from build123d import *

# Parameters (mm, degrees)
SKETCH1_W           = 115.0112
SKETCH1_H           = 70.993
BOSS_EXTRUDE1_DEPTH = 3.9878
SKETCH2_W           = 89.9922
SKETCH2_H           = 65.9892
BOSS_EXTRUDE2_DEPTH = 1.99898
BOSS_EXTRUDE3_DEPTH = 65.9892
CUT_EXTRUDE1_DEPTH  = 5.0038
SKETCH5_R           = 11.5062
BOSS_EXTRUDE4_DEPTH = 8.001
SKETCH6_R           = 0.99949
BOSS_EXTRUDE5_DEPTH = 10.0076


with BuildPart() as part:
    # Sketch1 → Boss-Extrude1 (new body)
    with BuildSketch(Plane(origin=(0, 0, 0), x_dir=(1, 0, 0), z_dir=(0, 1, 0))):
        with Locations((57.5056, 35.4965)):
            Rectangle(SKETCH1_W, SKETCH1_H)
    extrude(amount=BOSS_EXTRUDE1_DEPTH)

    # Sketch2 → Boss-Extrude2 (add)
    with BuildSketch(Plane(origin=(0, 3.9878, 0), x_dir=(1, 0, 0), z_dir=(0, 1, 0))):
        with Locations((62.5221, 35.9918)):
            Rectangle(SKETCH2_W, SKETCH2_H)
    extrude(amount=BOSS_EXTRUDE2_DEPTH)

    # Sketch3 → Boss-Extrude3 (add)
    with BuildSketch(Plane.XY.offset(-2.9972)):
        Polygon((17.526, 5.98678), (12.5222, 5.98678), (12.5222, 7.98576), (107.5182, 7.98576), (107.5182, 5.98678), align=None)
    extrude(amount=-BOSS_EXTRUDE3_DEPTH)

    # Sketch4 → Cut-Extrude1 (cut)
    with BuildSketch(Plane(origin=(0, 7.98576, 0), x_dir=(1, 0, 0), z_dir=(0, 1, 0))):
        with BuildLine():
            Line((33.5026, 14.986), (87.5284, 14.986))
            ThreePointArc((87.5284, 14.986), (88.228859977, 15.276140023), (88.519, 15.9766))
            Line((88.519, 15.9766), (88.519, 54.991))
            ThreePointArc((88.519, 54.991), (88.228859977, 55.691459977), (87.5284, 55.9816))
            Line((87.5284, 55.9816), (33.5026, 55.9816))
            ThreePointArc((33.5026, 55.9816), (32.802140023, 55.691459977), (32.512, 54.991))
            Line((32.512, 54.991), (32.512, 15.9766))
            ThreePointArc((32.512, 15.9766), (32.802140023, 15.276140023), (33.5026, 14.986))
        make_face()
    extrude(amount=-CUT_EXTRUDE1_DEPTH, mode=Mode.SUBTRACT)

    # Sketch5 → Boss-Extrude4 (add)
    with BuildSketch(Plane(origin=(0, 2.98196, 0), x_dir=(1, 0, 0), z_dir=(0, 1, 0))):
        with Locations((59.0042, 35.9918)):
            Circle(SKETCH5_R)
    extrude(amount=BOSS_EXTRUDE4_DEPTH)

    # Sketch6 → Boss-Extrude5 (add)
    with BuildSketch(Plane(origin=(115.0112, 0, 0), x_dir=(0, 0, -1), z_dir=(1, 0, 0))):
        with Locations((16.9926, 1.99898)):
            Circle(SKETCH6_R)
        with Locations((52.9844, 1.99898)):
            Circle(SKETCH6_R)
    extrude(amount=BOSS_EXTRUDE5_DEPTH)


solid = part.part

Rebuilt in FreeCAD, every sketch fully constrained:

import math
import FreeCAD as App
import Part
import Sketcher
from FreeCAD import Vector
Q = App.Units.Quantity

doc = App.newDocument("Part")
params = doc.addObject("Spreadsheet::Sheet", "Params")
for row, (alias, value) in enumerate([
    ("sketch1_width", "4.528 in"),
    ("sketch1_height", "2.795 in"),
    ("pad1_length", "0.157 in"),
    ("sketch2_width", "3.543 in"),
    ("sketch2_height", "2.598 in"),
    ("pad2_length", "0.0787 in"),
    ("sketch3_width", "3.74 in"),
    ("pad3_length", "2.598 in"),
    ("sketch4_radius", "0.039 in"),
    ("sketch4_width", "2.127 in"),
    ("sketch4_height", "1.536 in"),
    ("pocket1_length", "0.197 in"),
    ("sketch5_diameter", "0.906 in"),
    ("pad4_length", "0.315 in"),
    ("pad5_length", "0.394 in"),
], start=1):
    params.set(f"A{row}", alias)
    params.set(f"B{row}", "=" + value)
    params.setAlias(f"B{row}", alias)

body = doc.addObject("PartDesign::Body", "Body")

# Sketch on XZ plane
sketch1 = body.newObject("Sketcher::SketchObject", "Sketch")
sketch1.AttachmentSupport = (doc.getObject("XZ_Plane"), [""])
sketch1.MapMode = "FlatFace"
sketch1.addGeometry([
    Part.LineSegment(Vector(0, -70.993, 0), Vector(0, 0, 0)),
    Part.LineSegment(Vector(0, 0, 0), Vector(115.0112, 0, 0)),
    Part.LineSegment(Vector(115.0112, 0, 0), Vector(115.0112, -70.993, 0)),
    Part.LineSegment(Vector(115.0112, -70.993, 0), Vector(0, -70.993, 0)),
], False)
sketch1.addConstraint([
    Sketcher.Constraint("Coincident", 0, 2, 1, 1),
    Sketcher.Constraint("Coincident", 1, 2, 2, 1),
    Sketcher.Constraint("Coincident", 2, 2, 3, 1),
    Sketcher.Constraint("Coincident", 3, 2, 0, 1),
    Sketcher.Constraint("Vertical", 0),
    Sketcher.Constraint("Horizontal", 1),
    Sketcher.Constraint("Vertical", 2),
    Sketcher.Constraint("Horizontal", 3),
    Sketcher.Constraint("Coincident", 0, 2, -1, 1),
    Sketcher.Constraint("DistanceX", 1, 1, 1, 2, Q("4.528 in")),
    Sketcher.Constraint("DistanceY", 0, 1, 0, 2, Q("2.795 in")),
])
sketch1.setExpression("Constraints[9]", "Params.sketch1_width")
sketch1.setExpression("Constraints[10]", "Params.sketch1_height")
pad1 = body.newObject("PartDesign::Pad", "Pad")
pad1.Profile = sketch1
pad1.setExpression("Length", "Params.pad1_length")
pad1.Reversed = True

# Sketch on XZ plane
sketch2 = body.newObject("Sketcher::SketchObject", "Sketch001")
sketch2.AttachmentSupport = (doc.getObject("XZ_Plane"), [""])
sketch2.MapMode = "FlatFace"
sketch2.AttachmentOffset = App.Placement(Vector(0, 0, -0.157 * 25.4), App.Rotation())
sketch2.addGeometry([
    Part.LineSegment(Vector(17.526, -68.9864, 0), Vector(17.526, -2.9972, 0)),
    Part.LineSegment(Vector(17.526, -2.9972, 0), Vector(107.5182, -2.9972, 0)),
    Part.LineSegment(Vector(107.5182, -2.9972, 0), Vector(107.5182, -68.9864, 0)),
    Part.LineSegment(Vector(107.5182, -68.9864, 0), Vector(17.526, -68.9864, 0)),
], False)
sketch2.addConstraint([
    Sketcher.Constraint("Coincident", 0, 2, 1, 1),
    Sketcher.Constraint("Coincident", 1, 2, 2, 1),
    Sketcher.Constraint("Coincident", 2, 2, 3, 1),
    Sketcher.Constraint("Coincident", 3, 2, 0, 1),
    Sketcher.Constraint("Vertical", 0),
    Sketcher.Constraint("Horizontal", 1),
    Sketcher.Constraint("Vertical", 2),
    Sketcher.Constraint("Horizontal", 3),
    Sketcher.Constraint("DistanceX", 1, 1, 1, 2, Q("3.543 in")),
    Sketcher.Constraint("DistanceY", 0, 1, 0, 2, Q("2.598 in")),
    Sketcher.Constraint("DistanceX", -1, 1, 0, 2, Q("0.69 in")),
    Sketcher.Constraint("DistanceY", 0, 2, -1, 1, Q("0.118 in")),
])
sketch2.setExpression("Constraints[8]", "Params.sketch2_width")
sketch2.setExpression("Constraints[9]", "Params.sketch2_height")
pad2 = body.newObject("PartDesign::Pad", "Pad001")
pad2.Profile = sketch2
pad2.setExpression("Length", "Params.pad2_length")
pad2.Reversed = True

# Sketch on XY plane
sketch3 = body.newObject("Sketcher::SketchObject", "Sketch002")
sketch3.AttachmentSupport = (doc.getObject("XY_Plane"), [""])
sketch3.MapMode = "FlatFace"
sketch3.AttachmentOffset = App.Placement(Vector(0, 0, -0.118 * 25.4), App.Rotation())
sketch3.addGeometry([
    Part.LineSegment(Vector(12.5222, 5.98678, 0), Vector(107.5182, 5.98678, 0)),
    Part.LineSegment(Vector(107.5182, 5.98678, 0), Vector(107.5182, 7.98576, 0)),
    Part.LineSegment(Vector(107.5182, 7.98576, 0), Vector(12.5222, 7.98576, 0)),
    Part.LineSegment(Vector(12.5222, 7.98576, 0), Vector(12.5222, 5.98678, 0)),
], False)
sketch3.addConstraint([
    Sketcher.Constraint("Coincident", 0, 2, 1, 1),
    Sketcher.Constraint("Coincident", 1, 2, 2, 1),
    Sketcher.Constraint("Coincident", 2, 2, 3, 1),
    Sketcher.Constraint("Coincident", 3, 2, 0, 1),
    Sketcher.Constraint("Horizontal", 0),
    Sketcher.Constraint("Vertical", 1),
    Sketcher.Constraint("Horizontal", 2),
    Sketcher.Constraint("Vertical", 3),
    Sketcher.Constraint("DistanceX", 0, 1, 0, 2, Q("3.74 in")),
    Sketcher.Constraint("DistanceY", 1, 1, 1, 2, Q("0.0787 in")),
    Sketcher.Constraint("DistanceX", -1, 1, 0, 2, Q("4.233 in")),
    Sketcher.Constraint("DistanceY", -1, 1, 0, 2, Q("0.2357 in")),
])
sketch3.setExpression("Constraints[8]", "Params.sketch3_width")
pad3 = body.newObject("PartDesign::Pad", "Pad002")
pad3.Profile = sketch3
pad3.setExpression("Length", "Params.pad3_length")
pad3.Reversed = True

# Sketch on XZ plane
sketch4 = body.newObject("Sketcher::SketchObject", "Sketch003")
sketch4.AttachmentSupport = (doc.getObject("XZ_Plane"), [""])
sketch4.MapMode = "FlatFace"
sketch4.AttachmentOffset = App.Placement(Vector(0, 0, -0.3144 * 25.4), App.Rotation())
sketch4.addGeometry([
    Part.LineSegment(Vector(33.5026, -14.986, 0), Vector(87.5284, -14.986, 0)),  # 0
    Part.ArcOfCircle(Part.Circle(Vector(87.5284, -15.9766, 0), Vector(0, 0, 1), 0.9906), math.radians(0), math.radians(90)),  # 1
    Part.LineSegment(Vector(88.519, -15.9766, 0), Vector(88.519, -54.991, 0)),  # 2
    Part.ArcOfCircle(Part.Circle(Vector(87.5284, -54.991, 0), Vector(0, 0, 1), 0.9906), math.radians(-90), math.radians(0)),  # 3
    Part.LineSegment(Vector(87.5284, -55.9816, 0), Vector(33.5026, -55.9816, 0)),  # 4
    Part.ArcOfCircle(Part.Circle(Vector(33.5026, -54.991, 0), Vector(0, 0, 1), 0.9906), math.radians(-180), math.radians(-90)),  # 5
    Part.LineSegment(Vector(32.512, -54.991, 0), Vector(32.512, -15.9766, 0)),  # 6
    Part.ArcOfCircle(Part.Circle(Vector(33.5026, -15.9766, 0), Vector(0, 0, 1), 0.9906), math.radians(90), math.radians(180)),  # 7
], False)
sketch4.addConstraint([
    Sketcher.Constraint("Tangent", 0, 2, 1, 2),
    Sketcher.Constraint("Tangent", 1, 1, 2, 1),
    Sketcher.Constraint("Tangent", 2, 2, 3, 2),
    Sketcher.Constraint("Tangent", 3, 1, 4, 1),
    Sketcher.Constraint("Tangent", 4, 2, 5, 2),
    Sketcher.Constraint("Tangent", 5, 1, 6, 1),
    Sketcher.Constraint("Tangent", 6, 2, 7, 2),
    Sketcher.Constraint("Tangent", 7, 1, 0, 1),
    Sketcher.Constraint("Horizontal", 0),
    Sketcher.Constraint("Vertical", 2),
    Sketcher.Constraint("Horizontal", 4),
    Sketcher.Constraint("Vertical", 6),
    Sketcher.Constraint("Equal", 1, 3),
    Sketcher.Constraint("Equal", 3, 5),
    Sketcher.Constraint("Equal", 5, 7),
    Sketcher.Constraint("Radius", 1, Q("0.039 in")),
    Sketcher.Constraint("DistanceX", 0, 1, 0, 2, Q("2.127 in")),
    Sketcher.Constraint("DistanceY", 2, 2, 2, 1, Q("1.536 in")),
    Sketcher.Constraint("DistanceY", 0, 2, -1, 1, Q("0.59 in")),
    Sketcher.Constraint("DistanceX", -1, 1, 5, 1, Q("1.28 in")),
])
sketch4.setExpression("Constraints[15]", "Params.sketch4_radius")
sketch4.setExpression("Constraints[16]", "Params.sketch4_width")
sketch4.setExpression("Constraints[17]", "Params.sketch4_height")
pocket1 = body.newObject("PartDesign::Pocket", "Pocket")
pocket1.Profile = sketch4
pocket1.setExpression("Length", "Params.pocket1_length")
pocket1.Reversed = True

# Sketch on XZ plane
sketch5 = body.newObject("Sketcher::SketchObject", "Sketch004")
sketch5.AttachmentSupport = (doc.getObject("XZ_Plane"), [""])
sketch5.MapMode = "FlatFace"
sketch5.AttachmentOffset = App.Placement(Vector(0, 0, -0.1174 * 25.4), App.Rotation())
sketch5.addGeometry(Part.Circle(Vector(59.0042, -35.9918, 0), Vector(0, 0, 1), 11.5062), False)
sketch5.addConstraint([
    Sketcher.Constraint("Diameter", 0, Q("0.906 in")),
    Sketcher.Constraint("DistanceX", -1, 1, 0, 3, Q("2.323 in")),
    Sketcher.Constraint("DistanceY", 0, 3, -1, 1, Q("1.417 in")),
])
sketch5.setExpression("Constraints[0]", "Params.sketch5_diameter")
pad4 = body.newObject("PartDesign::Pad", "Pad003")
pad4.Profile = sketch5
pad4.setExpression("Length", "Params.pad4_length")
pad4.Reversed = True

# Sketch on YZ plane
sketch6 = body.newObject("Sketcher::SketchObject", "Sketch005")
sketch6.AttachmentSupport = (doc.getObject("YZ_Plane"), [""])
sketch6.MapMode = "FlatFace"
sketch6.AttachmentOffset = App.Placement(Vector(0, 0, 4.528 * 25.4), App.Rotation())
sketch6.addGeometry([
    Part.Circle(Vector(1.99898, -16.9926, 0), Vector(0, 0, 1), 0.99949),
    Part.Circle(Vector(1.99898, -52.9844, 0), Vector(0, 0, 1), 0.99949),
], False)
sketch6.addConstraint([
    Sketcher.Constraint("Equal", 0, 1),
    Sketcher.Constraint("Vertical", 0, 3, 1, 3),
    Sketcher.Constraint("Diameter", 0, Q("0.0787 in")),
    Sketcher.Constraint("DistanceY", 0, 3, -1, 1, Q("0.669 in")),
    Sketcher.Constraint("DistanceY", 1, 3, -1, 1, Q("2.086 in")),
    Sketcher.Constraint("DistanceX", -1, 1, 0, 3, Q("0.0787 in")),
])
pad5 = body.newObject("PartDesign::Pad", "Pad004")
pad5.Profile = sketch6
pad5.setExpression("Length", "Params.pad5_length")

doc.recompute()
